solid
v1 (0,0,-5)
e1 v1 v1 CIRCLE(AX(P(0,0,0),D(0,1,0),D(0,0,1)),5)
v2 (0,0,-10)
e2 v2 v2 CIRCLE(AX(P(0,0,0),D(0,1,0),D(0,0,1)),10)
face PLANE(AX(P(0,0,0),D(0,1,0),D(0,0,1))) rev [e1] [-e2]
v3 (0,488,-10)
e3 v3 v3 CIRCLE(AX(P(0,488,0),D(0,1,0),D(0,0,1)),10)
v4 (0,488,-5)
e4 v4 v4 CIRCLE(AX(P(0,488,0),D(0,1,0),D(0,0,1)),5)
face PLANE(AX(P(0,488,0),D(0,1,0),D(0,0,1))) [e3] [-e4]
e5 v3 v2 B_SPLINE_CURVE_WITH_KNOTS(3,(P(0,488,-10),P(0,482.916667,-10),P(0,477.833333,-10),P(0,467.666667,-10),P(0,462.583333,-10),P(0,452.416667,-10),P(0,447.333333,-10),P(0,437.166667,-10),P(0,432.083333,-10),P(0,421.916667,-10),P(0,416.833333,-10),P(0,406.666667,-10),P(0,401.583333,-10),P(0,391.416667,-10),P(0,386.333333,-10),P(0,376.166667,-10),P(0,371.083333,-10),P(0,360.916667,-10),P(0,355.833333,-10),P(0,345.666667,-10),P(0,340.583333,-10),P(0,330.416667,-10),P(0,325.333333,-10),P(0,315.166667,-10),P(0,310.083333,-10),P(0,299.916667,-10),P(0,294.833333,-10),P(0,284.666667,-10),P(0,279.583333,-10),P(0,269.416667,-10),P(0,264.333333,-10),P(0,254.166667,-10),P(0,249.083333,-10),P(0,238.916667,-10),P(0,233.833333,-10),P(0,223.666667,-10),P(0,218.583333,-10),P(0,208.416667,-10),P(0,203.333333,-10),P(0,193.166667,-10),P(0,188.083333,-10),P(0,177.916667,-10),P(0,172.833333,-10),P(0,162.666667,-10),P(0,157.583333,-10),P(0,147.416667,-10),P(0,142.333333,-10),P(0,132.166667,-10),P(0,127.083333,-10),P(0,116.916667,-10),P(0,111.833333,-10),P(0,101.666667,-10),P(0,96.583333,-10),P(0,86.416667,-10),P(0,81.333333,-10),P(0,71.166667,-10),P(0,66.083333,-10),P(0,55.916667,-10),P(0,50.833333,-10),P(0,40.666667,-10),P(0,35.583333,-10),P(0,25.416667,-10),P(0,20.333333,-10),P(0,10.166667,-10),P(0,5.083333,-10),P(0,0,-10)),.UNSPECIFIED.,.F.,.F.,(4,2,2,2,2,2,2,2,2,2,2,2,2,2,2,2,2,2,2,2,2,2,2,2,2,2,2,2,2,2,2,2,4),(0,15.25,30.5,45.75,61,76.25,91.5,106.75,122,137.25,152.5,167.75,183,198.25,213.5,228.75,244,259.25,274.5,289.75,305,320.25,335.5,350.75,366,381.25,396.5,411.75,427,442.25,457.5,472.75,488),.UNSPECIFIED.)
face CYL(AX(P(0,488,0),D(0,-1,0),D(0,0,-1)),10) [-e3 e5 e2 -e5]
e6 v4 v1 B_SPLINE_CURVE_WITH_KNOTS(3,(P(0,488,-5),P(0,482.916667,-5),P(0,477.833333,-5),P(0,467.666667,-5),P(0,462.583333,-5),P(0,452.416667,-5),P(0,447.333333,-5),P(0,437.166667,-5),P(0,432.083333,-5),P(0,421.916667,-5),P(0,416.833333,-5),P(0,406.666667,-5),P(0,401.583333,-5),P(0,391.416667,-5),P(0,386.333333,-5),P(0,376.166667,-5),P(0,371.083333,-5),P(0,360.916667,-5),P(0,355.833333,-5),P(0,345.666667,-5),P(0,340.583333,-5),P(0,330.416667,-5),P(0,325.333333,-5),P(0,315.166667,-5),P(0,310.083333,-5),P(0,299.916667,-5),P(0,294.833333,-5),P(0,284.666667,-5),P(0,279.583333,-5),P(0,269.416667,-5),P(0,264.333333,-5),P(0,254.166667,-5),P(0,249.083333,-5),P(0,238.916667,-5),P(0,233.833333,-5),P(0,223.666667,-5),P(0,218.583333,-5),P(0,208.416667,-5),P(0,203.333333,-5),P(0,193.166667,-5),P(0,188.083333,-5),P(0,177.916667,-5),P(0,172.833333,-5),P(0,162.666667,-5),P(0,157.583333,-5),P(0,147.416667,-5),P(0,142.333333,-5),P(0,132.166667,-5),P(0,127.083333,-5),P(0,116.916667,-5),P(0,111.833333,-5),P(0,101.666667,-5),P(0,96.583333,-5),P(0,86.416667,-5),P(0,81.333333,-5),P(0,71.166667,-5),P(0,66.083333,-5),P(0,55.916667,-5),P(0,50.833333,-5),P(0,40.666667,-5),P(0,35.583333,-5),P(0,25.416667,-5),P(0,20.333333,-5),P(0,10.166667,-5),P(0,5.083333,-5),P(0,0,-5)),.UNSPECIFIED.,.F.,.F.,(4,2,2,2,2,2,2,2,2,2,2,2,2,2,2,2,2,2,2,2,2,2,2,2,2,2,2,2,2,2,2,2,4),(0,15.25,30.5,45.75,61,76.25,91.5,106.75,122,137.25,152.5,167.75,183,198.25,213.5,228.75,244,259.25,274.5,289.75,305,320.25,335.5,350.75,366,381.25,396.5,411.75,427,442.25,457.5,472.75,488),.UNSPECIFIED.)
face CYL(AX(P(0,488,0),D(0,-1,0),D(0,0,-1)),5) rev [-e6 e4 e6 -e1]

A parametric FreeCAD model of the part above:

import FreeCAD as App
import Part
import Sketcher
from FreeCAD import Vector
Q = App.Units.Quantity

doc = App.newDocument("Part")
body = doc.addObject("PartDesign::Body", "Body")

sketch1 = doc.addObject("Sketcher::SketchObject", "Sketch")
body.addObject(sketch1)
sketch1.AttachmentSupport = (doc.XZ_Plane, [""])
sketch1.MapMode = "FlatFace"
sketch1.addGeometry(Part.Circle(Vector(0, 0, 0), Vector(0, 0, 1), 10), False)
sketch1.addGeometry(Part.Circle(Vector(0, 0, 0), Vector(0, 0, 1), 5), False)
sketch1.addConstraint(Sketcher.Constraint("Coincident", 0, 3, -1, 1))
sketch1.addConstraint(Sketcher.Constraint("Coincident", 1, 3, -1, 1))
sketch1.addConstraint(Sketcher.Constraint("Diameter", 0, Q("20 mm")))
sketch1.addConstraint(Sketcher.Constraint("Diameter", 1, Q("10 mm")))
pad1 = doc.addObject("PartDesign::Pad", "Pad")
body.addObject(pad1)
pad1.Profile = sketch1
pad1.Length = 488
pad1.Reversed = True

doc.recompute()
